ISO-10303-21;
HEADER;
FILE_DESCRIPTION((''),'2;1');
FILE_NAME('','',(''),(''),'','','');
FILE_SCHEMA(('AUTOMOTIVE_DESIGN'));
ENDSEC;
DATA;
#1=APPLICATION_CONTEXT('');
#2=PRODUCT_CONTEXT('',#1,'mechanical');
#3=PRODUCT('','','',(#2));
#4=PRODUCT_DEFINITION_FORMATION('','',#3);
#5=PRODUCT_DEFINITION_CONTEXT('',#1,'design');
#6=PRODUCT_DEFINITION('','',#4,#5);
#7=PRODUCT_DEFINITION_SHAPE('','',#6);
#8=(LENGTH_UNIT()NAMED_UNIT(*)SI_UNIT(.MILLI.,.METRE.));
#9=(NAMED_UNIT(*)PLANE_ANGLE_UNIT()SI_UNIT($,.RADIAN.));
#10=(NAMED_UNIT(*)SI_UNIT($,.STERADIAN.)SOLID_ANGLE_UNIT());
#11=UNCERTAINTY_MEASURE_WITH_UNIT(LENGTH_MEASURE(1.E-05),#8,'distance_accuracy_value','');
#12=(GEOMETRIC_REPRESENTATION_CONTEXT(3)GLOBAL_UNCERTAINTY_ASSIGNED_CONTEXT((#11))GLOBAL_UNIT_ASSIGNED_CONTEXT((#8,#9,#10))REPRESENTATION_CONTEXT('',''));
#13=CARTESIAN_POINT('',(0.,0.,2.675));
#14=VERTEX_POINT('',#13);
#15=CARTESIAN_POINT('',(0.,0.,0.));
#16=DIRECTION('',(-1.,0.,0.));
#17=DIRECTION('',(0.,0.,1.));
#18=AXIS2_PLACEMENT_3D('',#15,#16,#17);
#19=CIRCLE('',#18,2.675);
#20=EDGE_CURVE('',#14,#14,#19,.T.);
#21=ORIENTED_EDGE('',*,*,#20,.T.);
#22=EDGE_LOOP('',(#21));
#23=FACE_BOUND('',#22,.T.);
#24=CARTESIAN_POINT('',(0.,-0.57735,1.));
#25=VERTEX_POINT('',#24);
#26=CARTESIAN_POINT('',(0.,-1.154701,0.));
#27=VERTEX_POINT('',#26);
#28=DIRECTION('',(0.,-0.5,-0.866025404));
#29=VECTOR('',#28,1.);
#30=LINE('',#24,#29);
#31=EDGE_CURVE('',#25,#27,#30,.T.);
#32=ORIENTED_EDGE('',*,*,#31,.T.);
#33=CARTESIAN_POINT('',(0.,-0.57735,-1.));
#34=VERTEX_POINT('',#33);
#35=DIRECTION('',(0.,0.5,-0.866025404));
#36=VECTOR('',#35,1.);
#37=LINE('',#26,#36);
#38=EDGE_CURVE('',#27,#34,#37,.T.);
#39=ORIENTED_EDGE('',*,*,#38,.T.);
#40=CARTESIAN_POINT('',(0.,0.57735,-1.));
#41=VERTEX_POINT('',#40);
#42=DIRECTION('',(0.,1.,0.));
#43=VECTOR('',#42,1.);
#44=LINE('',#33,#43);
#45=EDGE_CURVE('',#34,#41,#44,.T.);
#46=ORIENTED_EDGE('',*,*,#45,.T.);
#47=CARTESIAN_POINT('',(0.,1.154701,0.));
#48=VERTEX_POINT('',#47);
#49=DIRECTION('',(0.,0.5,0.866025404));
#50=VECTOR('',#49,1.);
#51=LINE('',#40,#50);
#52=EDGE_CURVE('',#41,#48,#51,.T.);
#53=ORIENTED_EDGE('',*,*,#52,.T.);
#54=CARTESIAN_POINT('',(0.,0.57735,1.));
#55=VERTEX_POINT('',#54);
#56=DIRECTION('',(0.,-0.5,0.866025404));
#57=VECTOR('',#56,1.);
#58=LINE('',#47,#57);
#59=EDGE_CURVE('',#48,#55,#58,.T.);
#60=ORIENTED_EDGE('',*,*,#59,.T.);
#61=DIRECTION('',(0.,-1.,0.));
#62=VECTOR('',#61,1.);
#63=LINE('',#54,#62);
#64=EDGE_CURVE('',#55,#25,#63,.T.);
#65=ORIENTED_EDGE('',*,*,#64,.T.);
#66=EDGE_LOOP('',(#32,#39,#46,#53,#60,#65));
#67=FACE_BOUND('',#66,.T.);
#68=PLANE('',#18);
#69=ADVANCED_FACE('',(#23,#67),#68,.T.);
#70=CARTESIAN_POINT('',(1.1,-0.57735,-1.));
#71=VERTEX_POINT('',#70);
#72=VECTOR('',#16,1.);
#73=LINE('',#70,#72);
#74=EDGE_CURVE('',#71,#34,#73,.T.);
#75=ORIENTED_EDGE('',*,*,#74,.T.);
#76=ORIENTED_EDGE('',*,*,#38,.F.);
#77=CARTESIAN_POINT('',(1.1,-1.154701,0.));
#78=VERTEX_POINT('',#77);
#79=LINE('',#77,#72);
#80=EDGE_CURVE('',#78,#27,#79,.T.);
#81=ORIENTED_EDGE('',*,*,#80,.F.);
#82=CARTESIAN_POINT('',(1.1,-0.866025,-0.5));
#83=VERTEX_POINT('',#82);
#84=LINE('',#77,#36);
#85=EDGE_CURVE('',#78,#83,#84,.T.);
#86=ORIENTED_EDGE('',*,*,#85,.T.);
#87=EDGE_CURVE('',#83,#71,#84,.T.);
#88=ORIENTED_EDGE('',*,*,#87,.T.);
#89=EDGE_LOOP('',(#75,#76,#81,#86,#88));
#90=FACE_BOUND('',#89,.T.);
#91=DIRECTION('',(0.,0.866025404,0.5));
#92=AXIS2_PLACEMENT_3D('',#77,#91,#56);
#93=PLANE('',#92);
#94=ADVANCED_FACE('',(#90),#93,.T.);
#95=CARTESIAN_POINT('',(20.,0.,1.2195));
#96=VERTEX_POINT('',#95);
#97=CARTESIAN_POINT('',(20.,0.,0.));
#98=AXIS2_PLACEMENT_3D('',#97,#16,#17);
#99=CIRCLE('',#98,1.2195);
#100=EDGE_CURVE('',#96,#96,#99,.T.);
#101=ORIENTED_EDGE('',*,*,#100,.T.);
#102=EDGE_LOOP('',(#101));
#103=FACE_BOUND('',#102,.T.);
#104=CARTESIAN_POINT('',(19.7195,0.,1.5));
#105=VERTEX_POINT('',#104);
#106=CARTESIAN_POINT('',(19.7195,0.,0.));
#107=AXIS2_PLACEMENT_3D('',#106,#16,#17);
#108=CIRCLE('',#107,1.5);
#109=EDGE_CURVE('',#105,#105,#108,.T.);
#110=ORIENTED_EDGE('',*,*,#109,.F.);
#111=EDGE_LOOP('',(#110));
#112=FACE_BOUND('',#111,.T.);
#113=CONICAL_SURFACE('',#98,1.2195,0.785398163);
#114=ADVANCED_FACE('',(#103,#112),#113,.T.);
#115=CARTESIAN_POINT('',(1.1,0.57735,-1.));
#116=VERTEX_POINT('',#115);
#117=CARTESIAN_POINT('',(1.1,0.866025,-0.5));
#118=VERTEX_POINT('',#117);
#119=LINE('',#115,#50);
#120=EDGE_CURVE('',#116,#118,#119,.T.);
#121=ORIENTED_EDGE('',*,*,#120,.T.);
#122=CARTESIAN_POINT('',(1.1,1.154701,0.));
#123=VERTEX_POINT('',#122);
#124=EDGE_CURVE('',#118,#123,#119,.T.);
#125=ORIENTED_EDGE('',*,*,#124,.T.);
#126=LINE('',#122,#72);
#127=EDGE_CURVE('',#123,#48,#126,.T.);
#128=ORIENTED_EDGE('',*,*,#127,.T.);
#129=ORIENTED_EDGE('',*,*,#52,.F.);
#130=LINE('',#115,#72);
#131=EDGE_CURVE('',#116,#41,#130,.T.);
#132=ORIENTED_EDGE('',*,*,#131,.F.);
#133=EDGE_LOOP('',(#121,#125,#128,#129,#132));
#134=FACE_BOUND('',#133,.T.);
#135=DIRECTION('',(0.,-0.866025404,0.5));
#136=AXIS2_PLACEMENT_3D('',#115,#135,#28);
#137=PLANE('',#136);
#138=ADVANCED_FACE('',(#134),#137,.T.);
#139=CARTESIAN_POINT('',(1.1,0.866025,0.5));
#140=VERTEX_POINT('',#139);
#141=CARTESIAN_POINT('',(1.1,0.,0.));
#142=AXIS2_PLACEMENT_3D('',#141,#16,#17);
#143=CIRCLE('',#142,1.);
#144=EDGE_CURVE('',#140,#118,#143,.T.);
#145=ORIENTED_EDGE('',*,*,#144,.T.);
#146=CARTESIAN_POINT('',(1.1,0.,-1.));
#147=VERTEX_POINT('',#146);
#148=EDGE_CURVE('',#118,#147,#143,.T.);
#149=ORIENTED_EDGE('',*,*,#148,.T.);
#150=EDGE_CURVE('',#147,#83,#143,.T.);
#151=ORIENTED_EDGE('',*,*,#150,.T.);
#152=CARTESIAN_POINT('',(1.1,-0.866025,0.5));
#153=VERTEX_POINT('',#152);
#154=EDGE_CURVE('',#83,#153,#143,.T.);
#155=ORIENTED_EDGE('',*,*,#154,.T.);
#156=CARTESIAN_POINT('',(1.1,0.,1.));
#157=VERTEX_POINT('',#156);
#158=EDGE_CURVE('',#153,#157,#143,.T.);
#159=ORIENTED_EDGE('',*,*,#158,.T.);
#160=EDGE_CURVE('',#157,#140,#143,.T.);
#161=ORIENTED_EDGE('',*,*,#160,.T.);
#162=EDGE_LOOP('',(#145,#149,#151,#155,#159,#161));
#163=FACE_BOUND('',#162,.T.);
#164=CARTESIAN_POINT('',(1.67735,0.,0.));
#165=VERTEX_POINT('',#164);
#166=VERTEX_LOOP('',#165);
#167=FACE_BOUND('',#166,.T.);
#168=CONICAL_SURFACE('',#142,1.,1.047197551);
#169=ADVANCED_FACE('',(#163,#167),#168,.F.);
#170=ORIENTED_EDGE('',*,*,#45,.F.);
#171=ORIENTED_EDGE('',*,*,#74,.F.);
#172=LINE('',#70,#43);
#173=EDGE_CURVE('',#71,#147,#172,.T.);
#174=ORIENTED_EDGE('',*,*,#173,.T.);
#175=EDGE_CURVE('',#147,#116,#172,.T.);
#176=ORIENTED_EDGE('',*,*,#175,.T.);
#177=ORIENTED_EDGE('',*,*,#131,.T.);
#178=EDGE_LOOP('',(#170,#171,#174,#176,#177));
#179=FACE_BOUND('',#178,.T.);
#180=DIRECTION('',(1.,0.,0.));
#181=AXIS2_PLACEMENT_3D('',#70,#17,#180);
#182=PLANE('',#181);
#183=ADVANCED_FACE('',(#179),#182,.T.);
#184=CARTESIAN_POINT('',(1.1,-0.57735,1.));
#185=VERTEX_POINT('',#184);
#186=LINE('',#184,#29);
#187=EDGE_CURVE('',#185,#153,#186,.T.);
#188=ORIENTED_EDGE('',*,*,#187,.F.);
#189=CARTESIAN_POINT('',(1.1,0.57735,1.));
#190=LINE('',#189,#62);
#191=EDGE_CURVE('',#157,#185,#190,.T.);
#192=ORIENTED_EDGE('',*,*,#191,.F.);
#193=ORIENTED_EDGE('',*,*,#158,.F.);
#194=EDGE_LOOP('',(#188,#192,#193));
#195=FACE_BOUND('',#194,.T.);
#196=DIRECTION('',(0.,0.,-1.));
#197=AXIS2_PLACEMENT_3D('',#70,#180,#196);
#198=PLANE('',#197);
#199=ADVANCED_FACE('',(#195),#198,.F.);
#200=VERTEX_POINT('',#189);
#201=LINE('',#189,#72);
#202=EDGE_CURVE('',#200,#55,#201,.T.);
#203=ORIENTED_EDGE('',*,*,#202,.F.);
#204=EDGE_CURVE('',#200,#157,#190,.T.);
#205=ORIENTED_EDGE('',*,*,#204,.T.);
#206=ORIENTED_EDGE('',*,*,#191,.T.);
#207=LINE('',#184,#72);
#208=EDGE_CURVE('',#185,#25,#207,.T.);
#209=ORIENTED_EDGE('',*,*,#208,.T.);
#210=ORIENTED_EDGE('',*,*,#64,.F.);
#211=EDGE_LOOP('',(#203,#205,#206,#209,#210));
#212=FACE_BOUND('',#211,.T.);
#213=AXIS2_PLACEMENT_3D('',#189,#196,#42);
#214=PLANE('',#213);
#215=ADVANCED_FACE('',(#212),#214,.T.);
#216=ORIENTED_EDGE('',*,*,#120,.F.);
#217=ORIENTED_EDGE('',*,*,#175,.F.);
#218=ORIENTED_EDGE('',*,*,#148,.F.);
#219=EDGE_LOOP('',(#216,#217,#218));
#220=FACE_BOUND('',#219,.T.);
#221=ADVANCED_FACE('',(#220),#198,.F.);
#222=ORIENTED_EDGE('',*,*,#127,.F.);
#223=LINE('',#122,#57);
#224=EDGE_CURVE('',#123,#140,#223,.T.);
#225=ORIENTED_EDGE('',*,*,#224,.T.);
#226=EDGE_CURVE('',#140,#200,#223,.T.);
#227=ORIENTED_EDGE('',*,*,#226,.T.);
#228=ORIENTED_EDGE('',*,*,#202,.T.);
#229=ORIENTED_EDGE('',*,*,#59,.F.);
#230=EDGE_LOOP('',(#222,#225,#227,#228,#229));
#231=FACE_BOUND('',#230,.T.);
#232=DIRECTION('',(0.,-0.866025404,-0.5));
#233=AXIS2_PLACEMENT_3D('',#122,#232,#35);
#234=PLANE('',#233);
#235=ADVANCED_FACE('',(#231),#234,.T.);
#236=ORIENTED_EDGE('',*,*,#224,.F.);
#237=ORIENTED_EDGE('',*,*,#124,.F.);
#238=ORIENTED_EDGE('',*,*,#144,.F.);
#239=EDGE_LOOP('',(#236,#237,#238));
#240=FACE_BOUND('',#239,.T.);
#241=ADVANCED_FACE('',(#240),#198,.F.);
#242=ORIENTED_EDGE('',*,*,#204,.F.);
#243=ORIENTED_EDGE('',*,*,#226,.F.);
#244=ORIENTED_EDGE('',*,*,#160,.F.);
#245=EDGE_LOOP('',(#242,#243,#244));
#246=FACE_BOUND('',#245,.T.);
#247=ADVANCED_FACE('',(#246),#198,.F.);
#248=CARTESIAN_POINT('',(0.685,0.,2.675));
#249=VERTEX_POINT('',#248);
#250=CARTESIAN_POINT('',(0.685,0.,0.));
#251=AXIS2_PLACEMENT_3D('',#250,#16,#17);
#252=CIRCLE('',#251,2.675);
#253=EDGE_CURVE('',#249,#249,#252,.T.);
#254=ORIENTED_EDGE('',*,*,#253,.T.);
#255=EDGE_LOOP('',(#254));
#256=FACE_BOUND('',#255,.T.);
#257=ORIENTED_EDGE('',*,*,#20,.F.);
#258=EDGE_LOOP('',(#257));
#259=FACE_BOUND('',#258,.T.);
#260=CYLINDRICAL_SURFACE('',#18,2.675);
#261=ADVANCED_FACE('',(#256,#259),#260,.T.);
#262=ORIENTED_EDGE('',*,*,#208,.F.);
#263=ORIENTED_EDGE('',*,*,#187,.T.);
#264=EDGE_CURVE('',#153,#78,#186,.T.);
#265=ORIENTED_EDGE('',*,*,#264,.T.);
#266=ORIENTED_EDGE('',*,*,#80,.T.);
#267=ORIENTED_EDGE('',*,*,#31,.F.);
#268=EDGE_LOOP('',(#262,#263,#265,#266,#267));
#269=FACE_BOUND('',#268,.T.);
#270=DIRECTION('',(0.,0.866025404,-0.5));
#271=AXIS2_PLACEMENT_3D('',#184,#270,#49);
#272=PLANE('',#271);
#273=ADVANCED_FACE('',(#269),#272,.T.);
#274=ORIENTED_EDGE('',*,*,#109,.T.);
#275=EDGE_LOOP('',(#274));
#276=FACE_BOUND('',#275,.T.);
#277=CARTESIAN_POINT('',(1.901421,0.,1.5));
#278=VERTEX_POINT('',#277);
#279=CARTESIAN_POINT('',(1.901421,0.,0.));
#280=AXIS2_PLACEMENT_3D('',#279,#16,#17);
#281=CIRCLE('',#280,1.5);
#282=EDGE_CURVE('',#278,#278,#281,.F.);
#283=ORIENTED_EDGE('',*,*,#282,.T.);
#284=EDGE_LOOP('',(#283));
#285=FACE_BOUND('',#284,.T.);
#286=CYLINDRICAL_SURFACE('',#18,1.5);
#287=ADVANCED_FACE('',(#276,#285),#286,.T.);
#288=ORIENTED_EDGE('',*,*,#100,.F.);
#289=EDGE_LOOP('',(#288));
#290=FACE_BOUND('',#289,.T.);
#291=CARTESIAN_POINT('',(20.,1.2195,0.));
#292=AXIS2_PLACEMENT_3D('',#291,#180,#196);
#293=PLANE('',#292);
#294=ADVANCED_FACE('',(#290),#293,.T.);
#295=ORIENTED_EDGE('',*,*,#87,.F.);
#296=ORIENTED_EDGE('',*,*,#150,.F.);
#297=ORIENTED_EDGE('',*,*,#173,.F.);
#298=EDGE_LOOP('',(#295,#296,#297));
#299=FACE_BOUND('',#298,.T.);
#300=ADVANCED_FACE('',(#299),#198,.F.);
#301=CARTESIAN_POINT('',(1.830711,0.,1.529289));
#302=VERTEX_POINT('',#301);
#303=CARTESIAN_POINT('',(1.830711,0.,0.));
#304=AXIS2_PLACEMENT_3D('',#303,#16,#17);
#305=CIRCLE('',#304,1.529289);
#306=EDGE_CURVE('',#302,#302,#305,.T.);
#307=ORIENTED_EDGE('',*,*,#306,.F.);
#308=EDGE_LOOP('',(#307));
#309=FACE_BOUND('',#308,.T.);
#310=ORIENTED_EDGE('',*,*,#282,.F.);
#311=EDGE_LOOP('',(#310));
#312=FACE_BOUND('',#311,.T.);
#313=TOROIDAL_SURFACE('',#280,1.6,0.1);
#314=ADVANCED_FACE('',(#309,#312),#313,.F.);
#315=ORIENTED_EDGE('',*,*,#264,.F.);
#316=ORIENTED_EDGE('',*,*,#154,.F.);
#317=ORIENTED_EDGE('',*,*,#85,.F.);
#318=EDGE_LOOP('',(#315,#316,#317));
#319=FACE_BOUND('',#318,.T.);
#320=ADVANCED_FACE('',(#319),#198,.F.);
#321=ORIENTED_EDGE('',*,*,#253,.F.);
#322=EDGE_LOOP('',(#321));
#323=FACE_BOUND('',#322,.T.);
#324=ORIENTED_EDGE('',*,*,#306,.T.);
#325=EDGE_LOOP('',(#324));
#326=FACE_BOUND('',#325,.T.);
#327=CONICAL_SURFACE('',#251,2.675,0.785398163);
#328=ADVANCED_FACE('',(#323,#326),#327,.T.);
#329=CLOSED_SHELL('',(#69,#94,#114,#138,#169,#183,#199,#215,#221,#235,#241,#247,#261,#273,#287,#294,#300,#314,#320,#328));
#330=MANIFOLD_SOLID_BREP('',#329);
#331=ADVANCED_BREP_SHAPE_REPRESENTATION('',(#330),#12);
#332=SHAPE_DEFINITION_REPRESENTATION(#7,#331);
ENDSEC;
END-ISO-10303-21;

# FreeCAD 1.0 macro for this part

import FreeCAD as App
import Part
import Sketcher
from FreeCAD import Vector
Q = App.Units.Quantity


def edges_at(feature, points):
    """Names of the edges that pass closest to the given points."""
    edges = feature.Shape.Edges
    near = lambda p: min(range(len(edges)), key=lambda i: edges[i].distToShape(Part.Vertex(*p))[0])
    return sorted({f"Edge{near(p) + 1}" for p in points})

doc = App.newDocument("Part")
params = doc.addObject("Spreadsheet::Sheet", "Params")
for row, (alias, value) in enumerate([
    ("sketch1_width", "20 mm"),
    ("revolution_angle", "360 deg"),
    ("fillet_radius", "0.1 mm"),
    ("sketch2_height", "1 mm"),
    ("sketch2_width", "1.1 mm"),
    ("groove_angle", "360 deg"),
    ("pocket1_length", "1.1 mm"),
], start=1):
    params.set(f"A{row}", alias)
    params.set(f"B{row}", "=" + value)
    params.setAlias(f"B{row}", alias)

body = doc.addObject("PartDesign::Body", "Body")

sketch1 = body.newObject("Sketcher::SketchObject", "Sketch")
sketch1.AttachmentSupport = (doc.getObject("XY_Plane"), [""])
sketch1.MapMode = "FlatFace"
sketch1.addGeometry(Part.LineSegment(Vector(0, 2.67, 0), Vector(0, 0, 0)), False)
sketch1.addGeometry(Part.LineSegment(Vector(0, 0, 0), Vector(20, 0, 0)), False)
sketch1.addGeometry(Part.LineSegment(Vector(20, 0, 0), Vector(20, 1.22, 0)), False)
sketch1.addGeometry(Part.LineSegment(Vector(20, 1.22, 0), Vector(19.72, 1.5, 0)), False)
sketch1.addGeometry(Part.LineSegment(Vector(19.72, 1.5, 0), Vector(1.86, 1.5, 0)), False)
sketch1.addGeometry(Part.LineSegment(Vector(1.86, 1.5, 0), Vector(0.69, 2.67, 0)), False)
sketch1.addGeometry(Part.LineSegment(Vector(0.69, 2.67, 0), Vector(0, 2.67, 0)), False)
sketch1.addConstraint(Sketcher.Constraint("Coincident", 0, 2, 1, 1))
sketch1.addConstraint(Sketcher.Constraint("Coincident", 1, 2, 2, 1))
sketch1.addConstraint(Sketcher.Constraint("Coincident", 2, 2, 3, 1))
sketch1.addConstraint(Sketcher.Constraint("Coincident", 3, 2, 4, 1))
sketch1.addConstraint(Sketcher.Constraint("Coincident", 4, 2, 5, 1))
sketch1.addConstraint(Sketcher.Constraint("Coincident", 5, 2, 6, 1))
sketch1.addConstraint(Sketcher.Constraint("Coincident", 6, 2, 0, 1))
sketch1.addConstraint(Sketcher.Constraint("Vertical", 0))
sketch1.addConstraint(Sketcher.Constraint("Horizontal", 1))
sketch1.addConstraint(Sketcher.Constraint("Vertical", 2))
sketch1.addConstraint(Sketcher.Constraint("Horizontal", 4))
sketch1.addConstraint(Sketcher.Constraint("Horizontal", 6))
sketch1.addConstraint(Sketcher.Constraint("Coincident", 0, 2, -1, 1))
sketch1.addConstraint(Sketcher.Constraint("Parallel", 3, 5))
sketch1.addConstraint(Sketcher.Constraint("DistanceX", 1, 1, 1, 2, 20.0))
sketch1.addConstraint(Sketcher.Constraint("Angle", 3, Q("135 deg")))
sketch1.addConstraint(Sketcher.Constraint("DistanceY", -1, 1, 3, 2, 1.5))
sketch1.addConstraint(Sketcher.Constraint("DistanceX", 6, 2, 6, 1, 0.685))
sketch1.addConstraint(Sketcher.Constraint("DistanceY", 0, 2, 0, 1, 2.675))
sketch1.addConstraint(Sketcher.Constraint("DistanceX", 4, 2, 4, 1, 17.8595))
sketch1.setExpression("Constraints[14]", "Params.sketch1_width")
revolution = body.newObject("PartDesign::Revolution", "Revolution")
revolution.Profile = sketch1
revolution.ReferenceAxis = (sketch1, ["H_Axis"])
revolution.setExpression("Angle", "Params.revolution_angle")
doc.recompute()

fillet = body.newObject("PartDesign::Fillet", "Fillet")
fillet.Base = (revolution, edges_at(revolution, [(1.86, 0, -1.5)]))
fillet.setExpression("Radius", "Params.fillet_radius")

sketch2 = body.newObject("Sketcher::SketchObject", "Sketch001")
sketch2.AttachmentSupport = (doc.getObject("XY_Plane"), [""])
sketch2.MapMode = "FlatFace"
sketch2.addGeometry(Part.LineSegment(Vector(1.1, 1, 0), Vector(0, 1, 0)), False)
sketch2.addGeometry(Part.LineSegment(Vector(0, 1, 0), Vector(0, 0, 0)), False)
sketch2.addGeometry(Part.LineSegment(Vector(0, 0, 0), Vector(1.7, 0, 0)), False)
sketch2.addGeometry(Part.LineSegment(Vector(1.7, 0, 0), Vector(1.1, 1, 0)), False)
sketch2.addConstraint(Sketcher.Constraint("Coincident", 0, 2, 1, 1))
sketch2.addConstraint(Sketcher.Constraint("Coincident", 1, 2, 2, 1))
sketch2.addConstraint(Sketcher.Constraint("Coincident", 2, 2, 3, 1))
sketch2.addConstraint(Sketcher.Constraint("Coincident", 3, 2, 0, 1))
sketch2.addConstraint(Sketcher.Constraint("Horizontal", 0))
sketch2.addConstraint(Sketcher.Constraint("Vertical", 1))
sketch2.addConstraint(Sketcher.Constraint("Horizontal", 2))
sketch2.addConstraint(Sketcher.Constraint("Coincident", 1, 2, -1, 1))
sketch2.addConstraint(Sketcher.Constraint("DistanceY", 1, 2, 1, 1, 1.0))
sketch2.addConstraint(Sketcher.Constraint("Angle", 3, Q("120 deg")))
sketch2.addConstraint(Sketcher.Constraint("DistanceX", 0, 2, 0, 1, 1.1))
sketch2.setExpression("Constraints[8]", "Params.sketch2_height")
sketch2.setExpression("Constraints[10]", "Params.sketch2_width")
groove = body.newObject("PartDesign::Groove", "Groove")
groove.Profile = sketch2
groove.ReferenceAxis = (sketch2, ["H_Axis"])
groove.setExpression("Angle", "Params.groove_angle")

sketch3 = body.newObject("Sketcher::SketchObject", "Sketch002")
sketch3.AttachmentSupport = (doc.getObject("YZ_Plane"), [""])
sketch3.MapMode = "FlatFace"
sketch3.addGeometry(Part.LineSegment(Vector(0.6, -1, 0), Vector(-0.6, -1, 0)), False)
sketch3.addGeometry(Part.LineSegment(Vector(-0.6, -1, 0), Vector(-1.2, 0, 0)), False)
sketch3.addGeometry(Part.LineSegment(Vector(-1.2, 0, 0), Vector(-0.6, 1, 0)), False)
sketch3.addGeometry(Part.LineSegment(Vector(-0.6, 1, 0), Vector(0.6, 1, 0)), False)
sketch3.addGeometry(Part.LineSegment(Vector(0.6, 1, 0), Vector(1.2, 0, 0)), False)
sketch3.addGeometry(Part.LineSegment(Vector(1.2, 0, 0), Vector(0.6, -1, 0)), False)
sketch3.addConstraint(Sketcher.Constraint("Coincident", 0, 2, 1, 1))
sketch3.addConstraint(Sketcher.Constraint("Coincident", 1, 2, 2, 1))
sketch3.addConstraint(Sketcher.Constraint("Coincident", 2, 2, 3, 1))
sketch3.addConstraint(Sketcher.Constraint("Coincident", 3, 2, 4, 1))
sketch3.addConstraint(Sketcher.Constraint("Coincident", 4, 2, 5, 1))
sketch3.addConstraint(Sketcher.Constraint("Coincident", 5, 2, 0, 1))
sketch3.addConstraint(Sketcher.Constraint("Horizontal", 0))
sketch3.addConstraint(Sketcher.Constraint("Horizontal", 3))
sketch3.addConstraint(Sketcher.Constraint("Symmetric", 0, 2, 3, 2, -1, 1))
sketch3.addConstraint(Sketcher.Constraint("Symmetric", 1, 2, 4, 2, -1, 1))
sketch3.addConstraint(Sketcher.Constraint("PointOnObject", 1, 2, -1))
sketch3.addConstraint(Sketcher.Constraint("Parallel", 2, 5))
sketch3.addConstraint(Sketcher.Constraint("Vertical", 0, 2, 2, 2))
sketch3.addConstraint(Sketcher.Constraint("Angle", 1, Q("120 deg")))
sketch3.addConstraint(Sketcher.Constraint("DistanceY", 0, 2, -1, 1, 1.0))
sketch3.addConstraint(Sketcher.Constraint("DistanceX", 0, 2, 0, 1, 1.154701))
pocket1 = body.newObject("PartDesign::Pocket", "Pocket")
pocket1.Profile = sketch3
pocket1.setExpression("Length", "Params.pocket1_length")
pocket1.Reversed = True

doc.recompute()
